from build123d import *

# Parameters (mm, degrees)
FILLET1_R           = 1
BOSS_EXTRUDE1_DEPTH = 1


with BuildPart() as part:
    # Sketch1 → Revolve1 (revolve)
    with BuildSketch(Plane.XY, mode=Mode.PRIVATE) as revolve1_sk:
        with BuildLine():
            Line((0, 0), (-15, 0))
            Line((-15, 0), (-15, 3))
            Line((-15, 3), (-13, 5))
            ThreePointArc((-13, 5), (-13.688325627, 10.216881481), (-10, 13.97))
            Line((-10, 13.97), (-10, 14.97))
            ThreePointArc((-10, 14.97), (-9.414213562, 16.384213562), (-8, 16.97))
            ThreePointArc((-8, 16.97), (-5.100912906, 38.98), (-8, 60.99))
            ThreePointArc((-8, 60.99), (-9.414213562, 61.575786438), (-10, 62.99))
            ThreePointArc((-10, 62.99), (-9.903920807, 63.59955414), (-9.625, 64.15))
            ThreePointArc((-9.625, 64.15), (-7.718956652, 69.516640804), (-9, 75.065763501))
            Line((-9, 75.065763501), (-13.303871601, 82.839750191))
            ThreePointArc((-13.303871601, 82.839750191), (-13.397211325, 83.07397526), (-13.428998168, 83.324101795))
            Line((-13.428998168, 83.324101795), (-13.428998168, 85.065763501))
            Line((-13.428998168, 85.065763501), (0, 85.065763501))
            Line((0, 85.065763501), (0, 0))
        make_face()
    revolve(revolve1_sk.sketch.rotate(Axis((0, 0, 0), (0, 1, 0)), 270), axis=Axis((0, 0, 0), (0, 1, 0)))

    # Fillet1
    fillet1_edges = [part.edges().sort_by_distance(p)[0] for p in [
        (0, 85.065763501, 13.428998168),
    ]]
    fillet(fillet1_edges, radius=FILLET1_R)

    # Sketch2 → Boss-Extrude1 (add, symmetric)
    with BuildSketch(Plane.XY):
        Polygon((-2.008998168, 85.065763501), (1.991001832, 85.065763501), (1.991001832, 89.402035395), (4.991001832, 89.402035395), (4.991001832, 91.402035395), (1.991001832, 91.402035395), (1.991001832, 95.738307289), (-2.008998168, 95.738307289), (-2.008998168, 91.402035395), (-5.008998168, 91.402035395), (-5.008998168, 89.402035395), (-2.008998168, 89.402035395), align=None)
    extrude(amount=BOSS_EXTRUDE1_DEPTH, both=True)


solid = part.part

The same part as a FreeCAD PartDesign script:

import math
import FreeCAD as App
import Part
import Sketcher
Q = App.Units.Quantity


def edges_at(feature, points):
    """Names of the edges that pass closest to the given points."""
    edges = feature.Shape.Edges
    near = lambda p: min(range(len(edges)), key=lambda i: edges[i].distToShape(Part.Vertex(*p))[0])
    return sorted({f"Edge{near(p) + 1}" for p in points})

doc = App.newDocument("Part")
body = doc.addObject("PartDesign::Body", "Body")

sketch1 = body.newObject("Sketcher::SketchObject", "Sketch")
sketch1.AttachmentSupport = (doc.getObject("XY_Plane"), [""])
sketch1.MapMode = "FlatFace"
sketch1.addGeometry([
    Part.LineSegment(App.Vector(-15, 0, 0), App.Vector(0, 0, 0)),
    Part.LineSegment(App.Vector(0, 0, 0), App.Vector(0, 85.065764, 0)),
    Part.LineSegment(App.Vector(0, 85.065764, 0), App.Vector(-13.428998, 85.065764, 0)),
    Part.LineSegment(App.Vector(-13.428998, 85.065764, 0), App.Vector(-13.428998, 83.324102, 0)),
    Part.ArcOfCircle(Part.Circle(App.Vector(-12.428998, 83.324102, 0), App.Vector(0, 0, 1), 1), math.radians(180), math.radians(208.97)),
    Part.LineSegment(App.Vector(-13.303872, 82.83975, 0), App.Vector(-9, 75.065764, 0)),
    Part.ArcOfCircle(Part.Circle(App.Vector(-17.862344, 70.097417, 0), App.Vector(0, 0, 1), 10.16), math.radians(-35.829536), math.radians(29.275563)),
    Part.ArcOfCircle(Part.Circle(App.Vector(-8.018367, 62.99, 0), App.Vector(0, 0, 1), 1.981633), math.radians(144.170464), math.radians(180)),
    Part.ArcOfCircle(Part.Circle(App.Vector(-8, 62.99, 0), App.Vector(0, 0, 1), 2), math.radians(-180), math.radians(-90)),
    Part.ArcOfCircle(Part.Circle(App.Vector(-90.100913, 38.98, 0), App.Vector(0, 0, 1), 85), math.radians(-15.007245), math.radians(15.007245)),
    Part.ArcOfCircle(Part.Circle(App.Vector(-8, 14.97, 0), App.Vector(0, 0, 1), 2), math.radians(90), math.radians(180)),
    Part.LineSegment(App.Vector(-10, 14.97, 0), App.Vector(-10, 13.97, 0)),
    Part.ArcOfCircle(Part.Circle(App.Vector(-7.998132, 8.313807, 0), App.Vector(0, 0, 1), 6), math.radians(109.490144), math.radians(213.525022)),
    Part.LineSegment(App.Vector(-13, 5, 0), App.Vector(-15, 3, 0)),
    Part.LineSegment(App.Vector(-15, 3, 0), App.Vector(-15, 0, 0)),
], False)
sketch1.addConstraint([
    Sketcher.Constraint("Coincident", 0, 2, 1, 1),
    Sketcher.Constraint("Coincident", 1, 2, 2, 1),
    Sketcher.Constraint("Coincident", 2, 2, 3, 1),
    Sketcher.Constraint("Tangent", 3, 2, 4, 1),
    Sketcher.Constraint("Tangent", 4, 2, 5, 1),
    Sketcher.Constraint("Coincident", 5, 2, 6, 2),
    Sketcher.Constraint("Tangent", 6, 1, 7, 1),
    Sketcher.Constraint("Tangent", 7, 2, 8, 1),
    Sketcher.Constraint("Coincident", 8, 2, 9, 2),
    Sketcher.Constraint("Coincident", 9, 1, 10, 1),
    Sketcher.Constraint("Tangent", 10, 2, 11, 1),
    Sketcher.Constraint("Coincident", 11, 2, 12, 1),
    Sketcher.Constraint("Coincident", 12, 2, 13, 1),
    Sketcher.Constraint("Coincident", 13, 2, 14, 1),
    Sketcher.Constraint("Coincident", 14, 2, 0, 1),
    Sketcher.Constraint("Horizontal", 0),
    Sketcher.Constraint("Vertical", 1),
    Sketcher.Constraint("Horizontal", 2),
    Sketcher.Constraint("Vertical", 3),
    Sketcher.Constraint("Vertical", 11),
    Sketcher.Constraint("Vertical", 14),
    Sketcher.Constraint("Coincident", 0, 2, -1, 1),
    Sketcher.Constraint("Equal", 8, 10),
    Sketcher.Constraint("Horizontal", 7, 3, 8, 3),
    Sketcher.Constraint("Vertical", 8, 3, 10, 3),
    Sketcher.Constraint("Vertical", 10, 3, 8, 2),
    Sketcher.Constraint("Vertical", 8, 2, 9, 1),
    Sketcher.Constraint("Radius", 4, 1.0),
    Sketcher.Constraint("Radius", 8, 2.0),
    Sketcher.Constraint("Radius", 9, 85.0),
    Sketcher.Constraint("Radius", 12, 6.0),
    Sketcher.Constraint("DistanceX", 0, 1, 0, 2, 15.0),
    Sketcher.Constraint("DistanceY", 11, 2, 11, 1, 1.0),
    Sketcher.Constraint("DistanceY", 14, 2, 14, 1, 3.0),
    Sketcher.Constraint("Angle", 13, Q("-135 deg")),
    Sketcher.Constraint("Radius", 6, 10.16),
    Sketcher.Constraint("DistanceX", 8, 3, -1, 1, 8.0),
    Sketcher.Constraint("DistanceX", 5, 2, -1, 1, 9.0),
    Sketcher.Constraint("DistanceX", 12, 2, -1, 1, 13.0),
    Sketcher.Constraint("DistanceY", 5, 2, 2, 2, 10.0),
    Sketcher.Constraint("Angle", 5, Q("-61.03 deg")),
    Sketcher.Constraint("DistanceX", 2, 2, 2, 1, 13.428998),
    Sketcher.Constraint("DistanceY", -1, 1, 7, 3, 62.99),
    Sketcher.Constraint("DistanceY", -1, 1, 9, 3, 38.98),
    Sketcher.Constraint("DistanceY", -1, 1, 6, 1, 64.15),
    Sketcher.Constraint("Radius", 7, 1.981633),
])
revolution = body.newObject("PartDesign::Revolution", "Revolution")
revolution.Profile = sketch1
revolution.ReferenceAxis = (sketch1, ["V_Axis"])
revolution.Angle = 360
doc.recompute()

fillet = body.newObject("PartDesign::Fillet", "Fillet")
fillet.Base = (revolution, edges_at(revolution, [(0, 85.066, 13.429)]))
fillet.Radius = 1

sketch2 = body.newObject("Sketcher::SketchObject", "Sketch001")
sketch2.AttachmentSupport = (doc.getObject("XY_Plane"), [""])
sketch2.MapMode = "FlatFace"
sketch2.addGeometry([
    Part.LineSegment(App.Vector(-2, 85.1, 0), App.Vector(2, 85.1, 0)),
    Part.LineSegment(App.Vector(2, 85.1, 0), App.Vector(2, 89.4, 0)),
    Part.LineSegment(App.Vector(2, 89.4, 0), App.Vector(5, 89.4, 0)),
    Part.LineSegment(App.Vector(5, 89.4, 0), App.Vector(5, 91.4, 0)),
    Part.LineSegment(App.Vector(5, 91.4, 0), App.Vector(2, 91.4, 0)),
    Part.LineSegment(App.Vector(2, 91.4, 0), App.Vector(2, 95.7, 0)),
    Part.LineSegment(App.Vector(2, 95.7, 0), App.Vector(-2, 95.7, 0)),
    Part.LineSegment(App.Vector(-2, 95.7, 0), App.Vector(-2, 91.4, 0)),
    Part.LineSegment(App.Vector(-2, 91.4, 0), App.Vector(-5, 91.4, 0)),
    Part.LineSegment(App.Vector(-5, 91.4, 0), App.Vector(-5, 89.4, 0)),
    Part.LineSegment(App.Vector(-5, 89.4, 0), App.Vector(-2, 89.4, 0)),
    Part.LineSegment(App.Vector(-2, 89.4, 0), App.Vector(-2, 85.1, 0)),
], False)
sketch2.addConstraint([
    Sketcher.Constraint("Coincident", 0, 2, 1, 1),
    Sketcher.Constraint("Coincident", 1, 2, 2, 1),
    Sketcher.Constraint("Coincident", 2, 2, 3, 1),
    Sketcher.Constraint("Coincident", 3, 2, 4, 1),
    Sketcher.Constraint("Coincident", 4, 2, 5, 1),
    Sketcher.Constraint("Coincident", 5, 2, 6, 1),
    Sketcher.Constraint("Coincident", 6, 2, 7, 1),
    Sketcher.Constraint("Coincident", 7, 2, 8, 1),
    Sketcher.Constraint("Coincident", 8, 2, 9, 1),
    Sketcher.Constraint("Coincident", 9, 2, 10, 1),
    Sketcher.Constraint("Coincident", 10, 2, 11, 1),
    Sketcher.Constraint("Coincident", 11, 2, 0, 1),
    Sketcher.Constraint("Horizontal", 0),
    Sketcher.Constraint("Vertical", 1),
    Sketcher.Constraint("Horizontal", 2),
    Sketcher.Constraint("Vertical", 3),
    Sketcher.Constraint("Horizontal", 4),
    Sketcher.Constraint("Vertical", 5),
    Sketcher.Constraint("Horizontal", 6),
    Sketcher.Constraint("Vertical", 7),
    Sketcher.Constraint("Horizontal", 8),
    Sketcher.Constraint("Vertical", 9),
    Sketcher.Constraint("Horizontal", 10),
    Sketcher.Constraint("Vertical", 11),
    Sketcher.Constraint("Horizontal", 4, 2, 7, 2),
    Sketcher.Constraint("Horizontal", 2, 2, 9, 2),
    Sketcher.Constraint("Vertical", 1, 2, 4, 2),
    Sketcher.Constraint("Vertical", 7, 2, 10, 2),
    Sketcher.Constraint("Equal", 4, 8),
    Sketcher.Constraint("Equal", 1, 5),
    Sketcher.Constraint("DistanceX", 0, 1, 0, 2, 4.0),
    Sketcher.Constraint("DistanceX", 2, 1, 2, 2, 3.0),
    Sketcher.Constraint("DistanceY", 3, 1, 3, 2, 2.0),
    Sketcher.Constraint("DistanceX", -1, 1, 0, 2, 1.991002),
    Sketcher.Constraint("DistanceY", 1, 1, 1, 2, 4.336272),
    Sketcher.Constraint("DistanceY", -1, 1, 0, 2, 85.065764),
])
pad1 = body.newObject("PartDesign::Pad", "Pad")
pad1.Profile = sketch2
pad1.Length = 2
pad1.Midplane = True

doc.recompute()
